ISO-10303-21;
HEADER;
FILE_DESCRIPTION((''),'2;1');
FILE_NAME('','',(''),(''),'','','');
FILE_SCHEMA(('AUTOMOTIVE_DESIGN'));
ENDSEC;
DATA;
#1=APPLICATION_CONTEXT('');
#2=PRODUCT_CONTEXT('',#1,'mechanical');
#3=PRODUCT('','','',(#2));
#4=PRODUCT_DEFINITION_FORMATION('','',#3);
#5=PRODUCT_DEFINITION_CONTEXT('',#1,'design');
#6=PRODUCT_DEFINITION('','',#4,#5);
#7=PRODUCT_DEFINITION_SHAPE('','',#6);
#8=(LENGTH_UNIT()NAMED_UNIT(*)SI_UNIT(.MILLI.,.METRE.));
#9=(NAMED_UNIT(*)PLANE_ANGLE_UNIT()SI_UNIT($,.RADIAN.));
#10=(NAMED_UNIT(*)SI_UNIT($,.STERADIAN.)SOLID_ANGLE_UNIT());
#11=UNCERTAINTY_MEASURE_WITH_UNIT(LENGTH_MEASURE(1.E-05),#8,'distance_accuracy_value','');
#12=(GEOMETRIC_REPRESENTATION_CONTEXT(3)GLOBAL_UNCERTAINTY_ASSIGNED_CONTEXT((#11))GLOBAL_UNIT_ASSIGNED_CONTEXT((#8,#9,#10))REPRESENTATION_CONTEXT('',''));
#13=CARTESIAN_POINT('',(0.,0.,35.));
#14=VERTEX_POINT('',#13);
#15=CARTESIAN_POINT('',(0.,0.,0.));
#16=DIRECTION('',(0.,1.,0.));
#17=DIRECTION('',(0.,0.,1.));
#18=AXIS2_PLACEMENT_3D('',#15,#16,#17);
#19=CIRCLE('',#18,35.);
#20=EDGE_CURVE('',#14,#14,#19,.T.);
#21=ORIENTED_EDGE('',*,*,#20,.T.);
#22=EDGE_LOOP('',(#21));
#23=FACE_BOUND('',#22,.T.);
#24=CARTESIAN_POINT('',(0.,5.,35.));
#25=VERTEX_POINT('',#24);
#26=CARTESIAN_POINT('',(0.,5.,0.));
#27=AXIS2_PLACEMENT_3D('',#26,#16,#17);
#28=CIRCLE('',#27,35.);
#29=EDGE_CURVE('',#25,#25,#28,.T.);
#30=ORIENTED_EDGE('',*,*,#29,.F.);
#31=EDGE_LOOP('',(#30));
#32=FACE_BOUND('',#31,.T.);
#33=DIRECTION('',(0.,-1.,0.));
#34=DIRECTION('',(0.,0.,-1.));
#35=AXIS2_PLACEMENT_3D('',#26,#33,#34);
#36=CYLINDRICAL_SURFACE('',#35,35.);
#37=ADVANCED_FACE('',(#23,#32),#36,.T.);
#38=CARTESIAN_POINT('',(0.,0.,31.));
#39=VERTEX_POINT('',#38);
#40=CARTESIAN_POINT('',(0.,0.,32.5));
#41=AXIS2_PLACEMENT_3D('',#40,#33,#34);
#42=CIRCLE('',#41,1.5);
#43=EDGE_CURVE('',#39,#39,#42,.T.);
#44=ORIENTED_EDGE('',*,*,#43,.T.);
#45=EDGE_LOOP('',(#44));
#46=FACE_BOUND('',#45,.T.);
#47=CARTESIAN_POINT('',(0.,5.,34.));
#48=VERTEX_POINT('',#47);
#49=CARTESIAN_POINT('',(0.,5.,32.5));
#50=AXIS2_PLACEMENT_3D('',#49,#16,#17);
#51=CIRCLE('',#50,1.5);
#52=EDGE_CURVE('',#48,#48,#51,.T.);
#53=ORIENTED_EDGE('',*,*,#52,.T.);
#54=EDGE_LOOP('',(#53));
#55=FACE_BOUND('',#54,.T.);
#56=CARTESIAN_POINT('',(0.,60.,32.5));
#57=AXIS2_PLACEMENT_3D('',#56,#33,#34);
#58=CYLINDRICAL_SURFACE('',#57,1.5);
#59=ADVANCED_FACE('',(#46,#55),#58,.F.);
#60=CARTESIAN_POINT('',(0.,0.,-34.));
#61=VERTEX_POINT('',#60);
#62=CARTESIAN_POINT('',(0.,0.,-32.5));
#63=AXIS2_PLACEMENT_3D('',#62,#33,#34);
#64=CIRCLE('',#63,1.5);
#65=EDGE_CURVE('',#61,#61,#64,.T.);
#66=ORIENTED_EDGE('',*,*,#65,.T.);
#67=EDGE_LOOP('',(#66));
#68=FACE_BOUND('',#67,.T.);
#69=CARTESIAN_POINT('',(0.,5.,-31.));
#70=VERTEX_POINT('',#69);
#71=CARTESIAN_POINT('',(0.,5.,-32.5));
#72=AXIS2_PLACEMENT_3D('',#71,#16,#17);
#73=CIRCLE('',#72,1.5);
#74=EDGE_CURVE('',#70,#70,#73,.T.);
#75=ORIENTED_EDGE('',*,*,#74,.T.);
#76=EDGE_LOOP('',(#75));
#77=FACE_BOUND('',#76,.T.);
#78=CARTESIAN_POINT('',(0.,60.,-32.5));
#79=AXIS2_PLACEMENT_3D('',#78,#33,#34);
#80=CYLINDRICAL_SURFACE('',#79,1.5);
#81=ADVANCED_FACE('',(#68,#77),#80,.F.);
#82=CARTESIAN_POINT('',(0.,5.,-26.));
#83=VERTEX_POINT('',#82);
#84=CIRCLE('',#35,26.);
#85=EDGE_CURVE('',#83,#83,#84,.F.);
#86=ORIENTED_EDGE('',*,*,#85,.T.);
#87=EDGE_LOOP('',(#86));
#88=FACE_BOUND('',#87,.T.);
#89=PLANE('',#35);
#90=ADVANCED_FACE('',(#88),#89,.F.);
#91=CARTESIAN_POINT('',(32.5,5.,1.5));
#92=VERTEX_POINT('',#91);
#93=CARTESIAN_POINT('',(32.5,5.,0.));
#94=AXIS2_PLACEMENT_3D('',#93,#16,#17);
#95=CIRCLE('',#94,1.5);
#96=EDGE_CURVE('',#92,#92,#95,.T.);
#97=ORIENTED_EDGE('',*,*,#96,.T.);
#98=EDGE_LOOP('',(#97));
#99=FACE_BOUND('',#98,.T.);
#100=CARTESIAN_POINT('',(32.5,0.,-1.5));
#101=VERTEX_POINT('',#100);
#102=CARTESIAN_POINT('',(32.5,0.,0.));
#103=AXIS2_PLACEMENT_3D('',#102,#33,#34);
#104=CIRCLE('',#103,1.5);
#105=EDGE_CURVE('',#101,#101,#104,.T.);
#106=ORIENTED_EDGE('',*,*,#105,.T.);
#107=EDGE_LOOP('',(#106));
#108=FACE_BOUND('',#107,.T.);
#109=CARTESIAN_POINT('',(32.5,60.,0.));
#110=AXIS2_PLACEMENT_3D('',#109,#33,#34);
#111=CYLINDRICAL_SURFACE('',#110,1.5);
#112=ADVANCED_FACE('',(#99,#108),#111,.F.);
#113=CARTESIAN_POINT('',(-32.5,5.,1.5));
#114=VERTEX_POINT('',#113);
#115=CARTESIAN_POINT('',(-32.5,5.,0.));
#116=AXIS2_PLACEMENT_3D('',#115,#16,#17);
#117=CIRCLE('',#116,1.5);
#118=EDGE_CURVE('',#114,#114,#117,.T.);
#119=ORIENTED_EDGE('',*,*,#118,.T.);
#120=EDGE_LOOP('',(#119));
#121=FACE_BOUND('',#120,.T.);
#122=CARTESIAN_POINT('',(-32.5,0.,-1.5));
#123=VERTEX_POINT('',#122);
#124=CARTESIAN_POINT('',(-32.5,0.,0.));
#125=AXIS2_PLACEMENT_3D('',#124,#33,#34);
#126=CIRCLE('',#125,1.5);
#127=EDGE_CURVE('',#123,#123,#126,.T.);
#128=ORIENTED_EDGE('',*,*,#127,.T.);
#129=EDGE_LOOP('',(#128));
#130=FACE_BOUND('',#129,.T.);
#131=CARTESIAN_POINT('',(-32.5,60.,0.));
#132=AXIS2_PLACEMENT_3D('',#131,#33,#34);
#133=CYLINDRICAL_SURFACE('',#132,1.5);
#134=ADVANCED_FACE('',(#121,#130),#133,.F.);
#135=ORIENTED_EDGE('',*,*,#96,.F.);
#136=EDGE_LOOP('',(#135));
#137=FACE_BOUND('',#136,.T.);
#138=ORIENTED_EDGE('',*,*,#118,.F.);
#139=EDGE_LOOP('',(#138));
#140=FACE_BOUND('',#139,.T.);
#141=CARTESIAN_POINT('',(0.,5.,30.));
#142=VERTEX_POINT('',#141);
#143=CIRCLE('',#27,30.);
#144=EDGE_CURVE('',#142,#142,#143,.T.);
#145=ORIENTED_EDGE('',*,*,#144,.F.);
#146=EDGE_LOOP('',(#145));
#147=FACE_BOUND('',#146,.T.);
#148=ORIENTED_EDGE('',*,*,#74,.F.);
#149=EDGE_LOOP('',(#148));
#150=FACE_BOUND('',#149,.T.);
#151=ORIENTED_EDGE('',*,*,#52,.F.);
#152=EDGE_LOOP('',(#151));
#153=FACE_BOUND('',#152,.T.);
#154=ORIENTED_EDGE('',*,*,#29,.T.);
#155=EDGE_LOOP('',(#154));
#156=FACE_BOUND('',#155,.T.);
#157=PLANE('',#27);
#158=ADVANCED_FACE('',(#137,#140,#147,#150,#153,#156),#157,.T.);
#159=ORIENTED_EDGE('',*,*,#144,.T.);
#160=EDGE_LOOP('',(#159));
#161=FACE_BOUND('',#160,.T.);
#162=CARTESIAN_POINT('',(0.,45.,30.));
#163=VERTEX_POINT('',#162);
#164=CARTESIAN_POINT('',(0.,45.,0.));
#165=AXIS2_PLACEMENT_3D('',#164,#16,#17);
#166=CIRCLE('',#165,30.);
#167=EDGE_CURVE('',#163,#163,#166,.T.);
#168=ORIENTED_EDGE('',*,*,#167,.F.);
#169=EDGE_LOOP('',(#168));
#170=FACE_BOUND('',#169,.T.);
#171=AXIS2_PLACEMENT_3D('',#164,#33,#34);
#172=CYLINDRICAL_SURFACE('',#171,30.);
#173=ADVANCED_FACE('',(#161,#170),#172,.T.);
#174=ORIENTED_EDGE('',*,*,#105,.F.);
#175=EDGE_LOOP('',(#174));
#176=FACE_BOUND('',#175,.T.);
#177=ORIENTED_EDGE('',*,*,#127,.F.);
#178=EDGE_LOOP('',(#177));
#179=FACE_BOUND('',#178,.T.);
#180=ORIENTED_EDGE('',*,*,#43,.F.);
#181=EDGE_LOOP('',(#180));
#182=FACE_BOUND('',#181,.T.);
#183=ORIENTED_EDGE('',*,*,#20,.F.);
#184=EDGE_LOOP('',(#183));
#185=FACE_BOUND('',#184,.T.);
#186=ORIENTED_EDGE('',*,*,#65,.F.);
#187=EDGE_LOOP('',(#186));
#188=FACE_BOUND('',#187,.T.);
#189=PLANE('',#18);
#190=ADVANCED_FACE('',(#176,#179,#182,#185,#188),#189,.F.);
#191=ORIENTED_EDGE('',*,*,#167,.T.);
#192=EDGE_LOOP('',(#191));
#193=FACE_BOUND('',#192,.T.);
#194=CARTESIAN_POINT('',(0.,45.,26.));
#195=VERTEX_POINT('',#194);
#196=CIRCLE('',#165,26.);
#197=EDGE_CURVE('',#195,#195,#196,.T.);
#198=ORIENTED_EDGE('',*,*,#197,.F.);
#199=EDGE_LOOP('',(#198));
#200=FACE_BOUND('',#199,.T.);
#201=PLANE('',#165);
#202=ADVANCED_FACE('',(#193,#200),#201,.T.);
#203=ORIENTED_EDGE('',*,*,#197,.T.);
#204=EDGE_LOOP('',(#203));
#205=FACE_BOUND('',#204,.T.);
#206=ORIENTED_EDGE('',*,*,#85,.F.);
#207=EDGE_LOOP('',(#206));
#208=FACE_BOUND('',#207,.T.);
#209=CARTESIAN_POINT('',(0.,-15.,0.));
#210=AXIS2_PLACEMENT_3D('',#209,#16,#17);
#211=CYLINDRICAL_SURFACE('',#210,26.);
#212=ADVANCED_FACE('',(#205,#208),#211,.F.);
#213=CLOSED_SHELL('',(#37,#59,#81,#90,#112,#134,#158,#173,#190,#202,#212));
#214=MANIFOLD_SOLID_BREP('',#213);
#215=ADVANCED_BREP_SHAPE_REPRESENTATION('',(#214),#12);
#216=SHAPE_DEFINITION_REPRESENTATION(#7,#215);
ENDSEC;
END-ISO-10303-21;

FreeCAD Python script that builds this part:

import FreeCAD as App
import Part
import Sketcher
from FreeCAD import Vector

doc = App.newDocument("Part")
params = doc.addObject("Spreadsheet::Sheet", "Params")
for row, (alias, value) in enumerate([
    ("sketch1_diameter", "70 mm"),
    ("pad1_length", "5 mm"),
    ("sketch2_diameter", "60 mm"),
    ("pad2_length", "40 mm"),
    ("sketch3_diameter", "52 mm"),
    ("pocket1_length", "60 mm"),
    ("sketch4_diameter", "3 mm"),
    ("pocket2_length", "60 mm"),
    ("sketch5_diameter", "52 mm"),
    ("pad3_length", "5 mm"),
], start=1):
    params.set(f"A{row}", alias)
    params.set(f"B{row}", "=" + value)
    params.setAlias(f"B{row}", alias)

body = doc.addObject("PartDesign::Body", "Body")

# Sketch on XZ plane
sketch1 = body.newObject("Sketcher::SketchObject", "Sketch")
sketch1.AttachmentSupport = (doc.getObject("XZ_Plane"), [""])
sketch1.MapMode = "FlatFace"
sketch1.addGeometry(Part.Circle(Vector(0, 0, 0), Vector(0, 0, 1), 35), False)
sketch1.addConstraint(Sketcher.Constraint("Coincident", 0, 3, -1, 1))
sketch1.addConstraint(Sketcher.Constraint("Diameter", 0, 70.0))
sketch1.setExpression("Constraints[1]", "Params.sketch1_diameter")
pad1 = body.newObject("PartDesign::Pad", "Pad")
pad1.Profile = sketch1
pad1.setExpression("Length", "Params.pad1_length")
pad1.Reversed = True

# Sketch on XZ plane
sketch2 = body.newObject("Sketcher::SketchObject", "Sketch001")
sketch2.AttachmentSupport = (doc.getObject("XZ_Plane"), [""])
sketch2.MapMode = "FlatFace"
sketch2.AttachmentOffset = App.Placement(Vector(0, 0, -5), App.Rotation())
sketch2.addGeometry(Part.Circle(Vector(0, 0, 0), Vector(0, 0, 1), 30), False)
sketch2.addConstraint(Sketcher.Constraint("Coincident", 0, 3, -1, 1))
sketch2.addConstraint(Sketcher.Constraint("Diameter", 0, 60.0))
sketch2.setExpression("Constraints[1]", "Params.sketch2_diameter")
pad2 = body.newObject("PartDesign::Pad", "Pad001")
pad2.Profile = sketch2
pad2.setExpression("Length", "Params.pad2_length")
pad2.Reversed = True

# Sketch on XZ plane
sketch3 = body.newObject("Sketcher::SketchObject", "Sketch002")
sketch3.AttachmentSupport = (doc.getObject("XZ_Plane"), [""])
sketch3.MapMode = "FlatFace"
sketch3.AttachmentOffset = App.Placement(Vector(0, 0, -45), App.Rotation())
sketch3.addGeometry(Part.Circle(Vector(0, 0, 0), Vector(0, 0, 1), 26), False)
sketch3.addConstraint(Sketcher.Constraint("Coincident", 0, 3, -1, 1))
sketch3.addConstraint(Sketcher.Constraint("Diameter", 0, 52.0))
sketch3.setExpression("Constraints[1]", "Params.sketch3_diameter")
pocket1 = body.newObject("PartDesign::Pocket", "Pocket")
pocket1.Profile = sketch3
pocket1.setExpression("Length", "Params.pocket1_length")
pocket1.Reversed = True

# Sketch on XZ plane
sketch4 = body.newObject("Sketcher::SketchObject", "Sketch003")
sketch4.AttachmentSupport = (doc.getObject("XZ_Plane"), [""])
sketch4.MapMode = "FlatFace"
sketch4.addGeometry(Part.Circle(Vector(0, 32.5, 0), Vector(0, 0, 1), 1.5), False)
sketch4.addGeometry(Part.Circle(Vector(32.5, 0, 0), Vector(0, 0, 1), 1.5), False)
sketch4.addGeometry(Part.Circle(Vector(0, -32.5, 0), Vector(0, 0, 1), 1.5), False)
sketch4.addGeometry(Part.Circle(Vector(-32.5, 0, 0), Vector(0, 0, 1), 1.5), False)
sketch4.addConstraint(Sketcher.Constraint("Equal", 0, 1))
sketch4.addConstraint(Sketcher.Constraint("Equal", 1, 2))
sketch4.addConstraint(Sketcher.Constraint("Equal", 2, 3))
sketch4.addConstraint(Sketcher.Constraint("Symmetric", 0, 3, 2, 3, -1, 1))
sketch4.addConstraint(Sketcher.Constraint("Symmetric", 1, 3, 3, 3, -1, 1))
sketch4.addConstraint(Sketcher.Constraint("PointOnObject", 0, 3, -2))
sketch4.addConstraint(Sketcher.Constraint("PointOnObject", 1, 3, -1))
sketch4.addConstraint(Sketcher.Constraint("Diameter", 0, 3.0))
sketch4.addConstraint(Sketcher.Constraint("DistanceY", 2, 3, 0, 3, 65.0))
sketch4.addConstraint(Sketcher.Constraint("DistanceX", 3, 3, 1, 3, 65.0))
sketch4.setExpression("Constraints[7]", "Params.sketch4_diameter")
pocket2 = body.newObject("PartDesign::Pocket", "Pocket001")
pocket2.Profile = sketch4
pocket2.setExpression("Length", "Params.pocket2_length")

# Sketch on XZ plane
sketch5 = body.newObject("Sketcher::SketchObject", "Sketch004")
sketch5.AttachmentSupport = (doc.getObject("XZ_Plane"), [""])
sketch5.MapMode = "FlatFace"
sketch5.AttachmentOffset = App.Placement(Vector(0, 0, -5), App.Rotation())
sketch5.addGeometry(Part.Circle(Vector(0, 0, 0), Vector(0, 0, 1), 26), False)
sketch5.addConstraint(Sketcher.Constraint("Coincident", 0, 3, -1, 1))
sketch5.addConstraint(Sketcher.Constraint("Diameter", 0, 52.0))
sketch5.setExpression("Constraints[1]", "Params.sketch5_diameter")
pad3 = body.newObject("PartDesign::Pad", "Pad002")
pad3.Profile = sketch5
pad3.setExpression("Length", "Params.pad3_length")

doc.recompute()
